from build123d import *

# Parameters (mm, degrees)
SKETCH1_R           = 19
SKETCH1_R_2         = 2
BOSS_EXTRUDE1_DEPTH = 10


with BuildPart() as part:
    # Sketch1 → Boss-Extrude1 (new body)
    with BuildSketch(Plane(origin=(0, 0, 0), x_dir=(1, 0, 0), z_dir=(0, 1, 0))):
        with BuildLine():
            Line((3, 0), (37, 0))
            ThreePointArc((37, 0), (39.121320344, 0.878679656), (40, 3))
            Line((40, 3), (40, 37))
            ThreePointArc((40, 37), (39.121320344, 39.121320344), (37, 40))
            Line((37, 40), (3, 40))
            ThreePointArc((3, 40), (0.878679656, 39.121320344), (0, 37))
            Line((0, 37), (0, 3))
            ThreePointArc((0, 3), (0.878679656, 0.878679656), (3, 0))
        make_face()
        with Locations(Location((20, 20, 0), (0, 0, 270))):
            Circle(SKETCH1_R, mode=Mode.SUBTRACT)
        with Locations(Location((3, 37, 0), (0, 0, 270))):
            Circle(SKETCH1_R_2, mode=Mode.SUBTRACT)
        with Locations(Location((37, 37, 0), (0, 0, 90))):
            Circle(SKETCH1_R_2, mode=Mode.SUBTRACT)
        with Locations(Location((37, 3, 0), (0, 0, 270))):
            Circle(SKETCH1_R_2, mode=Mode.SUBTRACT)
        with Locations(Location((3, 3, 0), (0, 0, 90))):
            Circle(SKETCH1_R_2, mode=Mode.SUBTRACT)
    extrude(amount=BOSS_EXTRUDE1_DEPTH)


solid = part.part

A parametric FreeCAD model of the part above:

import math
import FreeCAD as App
import Part
import Sketcher
Q = App.Units.Quantity

doc = App.newDocument("Part")
body = doc.addObject("PartDesign::Body", "Body")

# Sketch on XZ plane
sketch1 = body.newObject("Sketcher::SketchObject", "Sketch")
sketch1.AttachmentSupport = (doc.getObject("XZ_Plane"), [""])
sketch1.MapMode = "FlatFace"
sketch1.addGeometry([
    Part.LineSegment(App.Vector(3, 0, 0), App.Vector(37, 0, 0)),  # 0
    Part.ArcOfCircle(Part.Circle(App.Vector(37, -3, 0), App.Vector(0, 0, 1), 3), math.radians(0), math.radians(90)),  # 1
    Part.LineSegment(App.Vector(40, -3, 0), App.Vector(40, -37, 0)),  # 2
    Part.ArcOfCircle(Part.Circle(App.Vector(37, -37, 0), App.Vector(0, 0, 1), 3), math.radians(-90), math.radians(0)),  # 3
    Part.LineSegment(App.Vector(37, -40, 0), App.Vector(3, -40, 0)),  # 4
    Part.ArcOfCircle(Part.Circle(App.Vector(3, -37, 0), App.Vector(0, 0, 1), 3), math.radians(180), math.radians(270)),  # 5
    Part.LineSegment(App.Vector(0, -37, 0), App.Vector(0, -3, 0)),  # 6
    Part.ArcOfCircle(Part.Circle(App.Vector(3, -3, 0), App.Vector(0, 0, 1), 3), math.radians(90), math.radians(180)),  # 7
    Part.Circle(App.Vector(3, -3, 0), App.Vector(0, 0, 1), 2),  # 8
    Part.Circle(App.Vector(37, -3, 0), App.Vector(0, 0, 1), 2),  # 9
    Part.Circle(App.Vector(3, -37, 0), App.Vector(0, 0, 1), 2),  # 10
    Part.Circle(App.Vector(20, -20, 0), App.Vector(0, 0, 1), 19),  # 11
    Part.Circle(App.Vector(37, -37, 0), App.Vector(0, 0, 1), 2),  # 12
], False)
sketch1.addConstraint([
    Sketcher.Constraint("Tangent", 0, 2, 1, 2),
    Sketcher.Constraint("Tangent", 1, 1, 2, 1),
    Sketcher.Constraint("Tangent", 2, 2, 3, 2),
    Sketcher.Constraint("Tangent", 3, 1, 4, 1),
    Sketcher.Constraint("Tangent", 4, 2, 5, 2),
    Sketcher.Constraint("Tangent", 5, 1, 6, 1),
    Sketcher.Constraint("Tangent", 6, 2, 7, 2),
    Sketcher.Constraint("Tangent", 7, 1, 0, 1),
    Sketcher.Constraint("Horizontal", 0),
    Sketcher.Constraint("Vertical", 2),
    Sketcher.Constraint("Horizontal", 4),
    Sketcher.Constraint("Vertical", 6),
    Sketcher.Constraint("Coincident", 8, 3, 7, 3),
    Sketcher.Constraint("Coincident", 9, 3, 1, 3),
    Sketcher.Constraint("Coincident", 10, 3, 5, 3),
    Sketcher.Constraint("Coincident", 12, 3, 3, 3),
    Sketcher.Constraint("Equal", 1, 3),
    Sketcher.Constraint("Equal", 3, 5),
    Sketcher.Constraint("Equal", 5, 7),
    Sketcher.Constraint("Equal", 8, 9),
    Sketcher.Constraint("Equal", 9, 10),
    Sketcher.Constraint("Equal", 10, 12),
    Sketcher.Constraint("PointOnObject", 0, 2, -1),
    Sketcher.Constraint("PointOnObject", 5, 1, -2),
    Sketcher.Constraint("Equal", 4, 2),
    Sketcher.Constraint("Diameter", 8, Q("4 mm")),
    Sketcher.Constraint("Diameter", 11, Q("38 mm")),
    Sketcher.Constraint("Radius", 1, Q("3 mm")),
    Sketcher.Constraint("DistanceX", 0, 1, 0, 2, Q("34 mm")),
    Sketcher.Constraint("DistanceX", -1, 1, 11, 3, Q("20 mm")),
    Sketcher.Constraint("DistanceY", 11, 3, -1, 1, Q("20 mm")),
])
pad1 = body.newObject("PartDesign::Pad", "Pad")
pad1.Profile = sketch1
pad1.Length = 10
pad1.Reversed = True

doc.recompute()
